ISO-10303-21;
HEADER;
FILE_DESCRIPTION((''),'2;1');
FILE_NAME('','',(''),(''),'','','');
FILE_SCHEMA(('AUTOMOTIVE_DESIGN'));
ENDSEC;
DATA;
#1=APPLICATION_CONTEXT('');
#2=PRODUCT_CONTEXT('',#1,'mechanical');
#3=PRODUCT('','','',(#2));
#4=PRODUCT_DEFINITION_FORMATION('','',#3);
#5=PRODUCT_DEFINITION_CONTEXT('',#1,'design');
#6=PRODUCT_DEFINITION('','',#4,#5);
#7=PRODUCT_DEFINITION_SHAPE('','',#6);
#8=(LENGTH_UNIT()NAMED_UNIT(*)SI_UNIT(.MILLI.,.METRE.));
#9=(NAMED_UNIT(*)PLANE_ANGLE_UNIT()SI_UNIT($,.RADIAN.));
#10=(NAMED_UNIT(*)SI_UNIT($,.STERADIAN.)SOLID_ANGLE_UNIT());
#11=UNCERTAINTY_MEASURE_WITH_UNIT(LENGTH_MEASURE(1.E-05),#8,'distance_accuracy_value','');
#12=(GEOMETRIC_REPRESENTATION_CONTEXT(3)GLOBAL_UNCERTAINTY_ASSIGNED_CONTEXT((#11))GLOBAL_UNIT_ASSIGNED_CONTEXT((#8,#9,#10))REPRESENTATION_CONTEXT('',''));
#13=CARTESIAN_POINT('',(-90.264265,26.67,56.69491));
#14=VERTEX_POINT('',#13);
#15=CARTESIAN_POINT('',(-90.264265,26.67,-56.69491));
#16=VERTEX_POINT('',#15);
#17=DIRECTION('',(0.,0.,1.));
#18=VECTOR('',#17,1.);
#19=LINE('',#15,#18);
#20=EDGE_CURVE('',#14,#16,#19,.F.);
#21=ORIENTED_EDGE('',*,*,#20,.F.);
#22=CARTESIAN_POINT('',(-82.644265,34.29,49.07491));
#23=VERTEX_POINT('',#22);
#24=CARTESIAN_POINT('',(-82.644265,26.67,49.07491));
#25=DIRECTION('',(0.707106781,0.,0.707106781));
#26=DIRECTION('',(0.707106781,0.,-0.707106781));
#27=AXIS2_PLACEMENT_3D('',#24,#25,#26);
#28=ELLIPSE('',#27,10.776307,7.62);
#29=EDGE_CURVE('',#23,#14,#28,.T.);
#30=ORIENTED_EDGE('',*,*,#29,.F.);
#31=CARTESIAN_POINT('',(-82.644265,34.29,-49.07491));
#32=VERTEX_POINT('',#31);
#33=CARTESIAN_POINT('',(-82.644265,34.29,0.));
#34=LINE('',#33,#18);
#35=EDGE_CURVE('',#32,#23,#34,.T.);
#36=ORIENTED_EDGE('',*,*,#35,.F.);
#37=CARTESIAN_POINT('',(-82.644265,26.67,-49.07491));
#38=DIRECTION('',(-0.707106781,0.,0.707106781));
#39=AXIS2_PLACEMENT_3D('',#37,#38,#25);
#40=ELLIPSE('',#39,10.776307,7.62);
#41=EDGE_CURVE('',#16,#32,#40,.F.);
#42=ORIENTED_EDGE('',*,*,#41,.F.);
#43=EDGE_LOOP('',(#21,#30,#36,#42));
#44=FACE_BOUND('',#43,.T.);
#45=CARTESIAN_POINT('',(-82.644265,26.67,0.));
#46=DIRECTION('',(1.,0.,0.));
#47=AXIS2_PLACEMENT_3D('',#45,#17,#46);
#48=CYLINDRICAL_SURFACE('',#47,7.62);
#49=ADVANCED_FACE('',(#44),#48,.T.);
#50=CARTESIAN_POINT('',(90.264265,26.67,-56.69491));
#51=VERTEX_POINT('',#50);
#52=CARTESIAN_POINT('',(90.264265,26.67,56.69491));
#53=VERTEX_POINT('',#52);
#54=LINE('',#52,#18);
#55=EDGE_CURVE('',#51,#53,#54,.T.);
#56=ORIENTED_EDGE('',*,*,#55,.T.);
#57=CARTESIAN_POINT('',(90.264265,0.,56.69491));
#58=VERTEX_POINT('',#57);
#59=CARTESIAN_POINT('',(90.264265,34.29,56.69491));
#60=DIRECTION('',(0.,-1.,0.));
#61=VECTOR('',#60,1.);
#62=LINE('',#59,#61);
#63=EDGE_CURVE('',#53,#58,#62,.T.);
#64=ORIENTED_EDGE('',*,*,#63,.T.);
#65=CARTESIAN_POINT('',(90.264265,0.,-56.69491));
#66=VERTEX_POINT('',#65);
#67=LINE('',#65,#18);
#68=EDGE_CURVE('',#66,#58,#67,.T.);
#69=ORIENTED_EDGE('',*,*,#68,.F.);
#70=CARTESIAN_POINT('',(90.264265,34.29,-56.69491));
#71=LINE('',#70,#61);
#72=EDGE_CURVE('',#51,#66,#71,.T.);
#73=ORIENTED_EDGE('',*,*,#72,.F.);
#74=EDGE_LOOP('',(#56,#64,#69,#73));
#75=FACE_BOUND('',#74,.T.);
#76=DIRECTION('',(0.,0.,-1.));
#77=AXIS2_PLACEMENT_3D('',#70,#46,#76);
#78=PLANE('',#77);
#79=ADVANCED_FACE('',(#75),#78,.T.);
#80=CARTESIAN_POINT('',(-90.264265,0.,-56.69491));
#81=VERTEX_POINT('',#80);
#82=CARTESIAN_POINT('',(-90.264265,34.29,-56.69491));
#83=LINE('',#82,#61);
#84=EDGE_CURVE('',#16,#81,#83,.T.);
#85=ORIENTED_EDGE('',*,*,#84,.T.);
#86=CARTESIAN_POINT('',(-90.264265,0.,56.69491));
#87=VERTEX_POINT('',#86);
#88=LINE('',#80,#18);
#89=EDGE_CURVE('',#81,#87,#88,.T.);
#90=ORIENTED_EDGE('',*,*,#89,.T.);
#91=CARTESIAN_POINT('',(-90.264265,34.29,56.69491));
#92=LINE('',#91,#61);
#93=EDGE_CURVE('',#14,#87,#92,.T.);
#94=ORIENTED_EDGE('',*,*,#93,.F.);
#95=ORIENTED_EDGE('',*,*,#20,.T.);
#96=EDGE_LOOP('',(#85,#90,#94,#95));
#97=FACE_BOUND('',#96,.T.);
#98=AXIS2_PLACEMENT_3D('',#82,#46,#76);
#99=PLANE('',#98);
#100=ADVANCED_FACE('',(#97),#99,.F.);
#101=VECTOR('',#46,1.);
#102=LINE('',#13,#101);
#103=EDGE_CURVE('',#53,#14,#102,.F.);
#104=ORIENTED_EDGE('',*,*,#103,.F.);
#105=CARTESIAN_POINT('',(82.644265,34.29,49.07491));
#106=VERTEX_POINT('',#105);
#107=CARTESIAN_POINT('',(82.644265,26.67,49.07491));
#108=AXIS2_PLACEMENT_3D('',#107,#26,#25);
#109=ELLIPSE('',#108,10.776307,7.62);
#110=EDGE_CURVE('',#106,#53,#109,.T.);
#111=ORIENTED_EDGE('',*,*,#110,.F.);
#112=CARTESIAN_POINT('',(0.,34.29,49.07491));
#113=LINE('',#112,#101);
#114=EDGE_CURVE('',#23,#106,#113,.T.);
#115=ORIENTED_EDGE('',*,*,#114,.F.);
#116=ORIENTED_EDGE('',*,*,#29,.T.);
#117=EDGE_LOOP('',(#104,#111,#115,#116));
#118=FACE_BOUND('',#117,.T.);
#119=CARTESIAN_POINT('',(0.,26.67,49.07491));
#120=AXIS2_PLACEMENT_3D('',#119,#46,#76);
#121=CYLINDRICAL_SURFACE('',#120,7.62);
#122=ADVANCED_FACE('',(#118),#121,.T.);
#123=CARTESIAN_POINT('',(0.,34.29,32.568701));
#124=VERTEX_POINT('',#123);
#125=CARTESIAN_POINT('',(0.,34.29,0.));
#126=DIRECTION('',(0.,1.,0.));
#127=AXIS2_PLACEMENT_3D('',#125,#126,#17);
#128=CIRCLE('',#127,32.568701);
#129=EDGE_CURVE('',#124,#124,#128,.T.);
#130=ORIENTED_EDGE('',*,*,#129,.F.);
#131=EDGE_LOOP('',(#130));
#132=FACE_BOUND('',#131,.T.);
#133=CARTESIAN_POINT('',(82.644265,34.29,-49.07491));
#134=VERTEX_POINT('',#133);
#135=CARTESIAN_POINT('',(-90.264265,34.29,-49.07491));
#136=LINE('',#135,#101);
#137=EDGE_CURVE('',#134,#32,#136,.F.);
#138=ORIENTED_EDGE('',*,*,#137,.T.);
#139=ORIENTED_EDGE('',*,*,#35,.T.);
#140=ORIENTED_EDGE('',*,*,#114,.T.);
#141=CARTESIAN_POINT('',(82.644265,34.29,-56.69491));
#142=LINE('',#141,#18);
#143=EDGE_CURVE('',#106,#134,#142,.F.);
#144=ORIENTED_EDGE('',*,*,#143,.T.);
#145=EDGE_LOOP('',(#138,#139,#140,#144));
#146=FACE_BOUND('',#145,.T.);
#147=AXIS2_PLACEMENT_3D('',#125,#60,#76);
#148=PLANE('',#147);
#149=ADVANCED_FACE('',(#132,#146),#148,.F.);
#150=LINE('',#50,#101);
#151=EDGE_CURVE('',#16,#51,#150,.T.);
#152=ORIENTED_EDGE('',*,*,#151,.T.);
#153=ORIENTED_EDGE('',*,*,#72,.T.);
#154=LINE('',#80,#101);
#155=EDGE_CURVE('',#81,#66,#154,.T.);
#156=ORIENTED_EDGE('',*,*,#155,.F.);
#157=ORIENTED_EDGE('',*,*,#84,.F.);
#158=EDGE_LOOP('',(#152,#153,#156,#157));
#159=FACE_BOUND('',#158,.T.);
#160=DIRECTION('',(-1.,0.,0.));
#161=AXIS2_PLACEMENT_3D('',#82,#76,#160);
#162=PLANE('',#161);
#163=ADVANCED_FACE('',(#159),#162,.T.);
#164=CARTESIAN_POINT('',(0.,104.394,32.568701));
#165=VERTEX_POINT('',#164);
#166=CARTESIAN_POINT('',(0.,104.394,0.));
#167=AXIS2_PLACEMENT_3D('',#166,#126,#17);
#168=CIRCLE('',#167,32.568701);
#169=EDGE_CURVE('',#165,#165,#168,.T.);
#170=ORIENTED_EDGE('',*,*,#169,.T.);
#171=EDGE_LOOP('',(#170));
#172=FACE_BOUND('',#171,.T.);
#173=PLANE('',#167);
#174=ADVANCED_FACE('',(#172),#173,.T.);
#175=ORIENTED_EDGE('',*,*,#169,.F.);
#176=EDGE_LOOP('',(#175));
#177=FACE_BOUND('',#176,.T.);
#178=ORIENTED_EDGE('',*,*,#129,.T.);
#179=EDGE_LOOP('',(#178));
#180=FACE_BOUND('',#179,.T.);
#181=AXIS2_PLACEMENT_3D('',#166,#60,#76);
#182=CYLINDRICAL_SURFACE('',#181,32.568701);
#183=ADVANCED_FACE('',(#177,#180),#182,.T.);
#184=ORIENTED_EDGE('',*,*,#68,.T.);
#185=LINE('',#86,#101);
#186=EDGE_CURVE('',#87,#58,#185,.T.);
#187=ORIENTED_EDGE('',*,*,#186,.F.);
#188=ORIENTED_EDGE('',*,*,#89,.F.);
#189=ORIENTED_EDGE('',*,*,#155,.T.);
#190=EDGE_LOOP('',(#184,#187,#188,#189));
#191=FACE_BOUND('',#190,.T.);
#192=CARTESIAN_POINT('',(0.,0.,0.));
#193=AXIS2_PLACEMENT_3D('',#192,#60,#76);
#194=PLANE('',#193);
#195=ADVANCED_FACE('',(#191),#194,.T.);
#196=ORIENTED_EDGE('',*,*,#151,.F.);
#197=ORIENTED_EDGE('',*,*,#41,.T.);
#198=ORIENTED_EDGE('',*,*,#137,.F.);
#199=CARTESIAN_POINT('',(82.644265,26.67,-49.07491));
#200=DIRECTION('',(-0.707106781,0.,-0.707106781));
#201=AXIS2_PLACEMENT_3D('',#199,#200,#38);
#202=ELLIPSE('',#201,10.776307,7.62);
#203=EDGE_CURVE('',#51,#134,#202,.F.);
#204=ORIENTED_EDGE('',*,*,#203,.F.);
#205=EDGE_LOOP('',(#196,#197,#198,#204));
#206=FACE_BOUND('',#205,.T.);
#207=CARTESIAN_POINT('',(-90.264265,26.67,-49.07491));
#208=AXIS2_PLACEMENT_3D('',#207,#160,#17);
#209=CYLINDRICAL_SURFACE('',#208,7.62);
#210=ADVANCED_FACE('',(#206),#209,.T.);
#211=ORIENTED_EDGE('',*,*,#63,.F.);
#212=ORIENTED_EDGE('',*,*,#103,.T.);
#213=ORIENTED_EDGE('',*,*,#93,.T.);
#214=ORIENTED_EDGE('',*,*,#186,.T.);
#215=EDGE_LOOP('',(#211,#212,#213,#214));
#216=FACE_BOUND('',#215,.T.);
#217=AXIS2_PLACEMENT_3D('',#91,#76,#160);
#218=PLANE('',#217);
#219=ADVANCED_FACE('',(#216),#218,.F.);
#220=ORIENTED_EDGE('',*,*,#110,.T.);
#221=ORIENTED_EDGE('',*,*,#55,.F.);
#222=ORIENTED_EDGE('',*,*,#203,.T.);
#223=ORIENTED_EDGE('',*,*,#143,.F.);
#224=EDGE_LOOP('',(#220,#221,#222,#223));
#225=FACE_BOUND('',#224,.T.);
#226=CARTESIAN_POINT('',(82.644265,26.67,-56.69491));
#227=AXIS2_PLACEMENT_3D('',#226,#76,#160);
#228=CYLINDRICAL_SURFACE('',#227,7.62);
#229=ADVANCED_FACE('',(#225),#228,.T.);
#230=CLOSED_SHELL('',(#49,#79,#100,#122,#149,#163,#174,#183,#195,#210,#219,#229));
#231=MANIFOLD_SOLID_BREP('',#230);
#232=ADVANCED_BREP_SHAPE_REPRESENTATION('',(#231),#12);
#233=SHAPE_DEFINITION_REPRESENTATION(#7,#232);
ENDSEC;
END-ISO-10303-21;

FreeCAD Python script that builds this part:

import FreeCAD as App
import Part
import Sketcher
Q = App.Units.Quantity


def edges_at(feature, points):
    """Names of the edges that pass closest to the given points."""
    edges = feature.Shape.Edges
    near = lambda p: min(range(len(edges)), key=lambda i: edges[i].distToShape(Part.Vertex(*p))[0])
    return sorted({f"Edge{near(p) + 1}" for p in points})

doc = App.newDocument("Part")
body = doc.addObject("PartDesign::Body", "Body")

# Sketch on XZ plane
sketch1 = body.newObject("Sketcher::SketchObject", "Sketch")
sketch1.AttachmentSupport = (doc.getObject("XZ_Plane"), [""])
sketch1.MapMode = "FlatFace"
sketch1.addGeometry(Part.LineSegment(App.Vector(-90, -57, 0), App.Vector(-90, 57, 0)), False)
sketch1.addGeometry(Part.LineSegment(App.Vector(-90, 57, 0), App.Vector(90, 57, 0)), False)
sketch1.addGeometry(Part.LineSegment(App.Vector(90, 57, 0), App.Vector(90, -57, 0)), False)
sketch1.addGeometry(Part.LineSegment(App.Vector(90, -57, 0), App.Vector(-90, -57, 0)), False)
sketch1.addConstraint(Sketcher.Constraint("Coincident", 0, 2, 1, 1))
sketch1.addConstraint(Sketcher.Constraint("Coincident", 1, 2, 2, 1))
sketch1.addConstraint(Sketcher.Constraint("Coincident", 2, 2, 3, 1))
sketch1.addConstraint(Sketcher.Constraint("Coincident", 3, 2, 0, 1))
sketch1.addConstraint(Sketcher.Constraint("Vertical", 0))
sketch1.addConstraint(Sketcher.Constraint("Horizontal", 1))
sketch1.addConstraint(Sketcher.Constraint("Vertical", 2))
sketch1.addConstraint(Sketcher.Constraint("Horizontal", 3))
sketch1.addConstraint(Sketcher.Constraint("Symmetric", 0, 2, 2, 2, -1, 1))
sketch1.addConstraint(Sketcher.Constraint("DistanceX", 1, 1, 1, 2, 180.528529))
sketch1.addConstraint(Sketcher.Constraint("DistanceY", 0, 1, 0, 2, 113.38982))
pad1 = body.newObject("PartDesign::Pad", "Pad")
pad1.Profile = sketch1
pad1.Length = Q("1.35 in")
pad1.Reversed = True

# Sketch on XZ plane
sketch2 = body.newObject("Sketcher::SketchObject", "Sketch001")
sketch2.AttachmentSupport = (doc.getObject("XZ_Plane"), [""])
sketch2.MapMode = "FlatFace"
sketch2.AttachmentOffset = App.Placement(App.Vector(0, 0, -1.35 * 25.4), App.Rotation())
sketch2.addGeometry(Part.Circle(App.Vector(0, 0, 0), App.Vector(0, 0, 1), 33), False)
sketch2.addConstraint(Sketcher.Constraint("Coincident", 0, 3, -1, 1))
sketch2.addConstraint(Sketcher.Constraint("Diameter", 0, 65.137402))
pad2 = body.newObject("PartDesign::Pad", "Pad001")
pad2.Profile = sketch2
pad2.Length = Q("2.76 in")
pad2.Reversed = True
doc.recompute()

fillet = body.newObject("PartDesign::Fillet", "Fillet")
fillet.Base = (pad2, edges_at(pad2, [
    (0, 34.29, -56.695),
    (-90.264, 34.29, 0),
    (0, 34.29, 56.695),
    (90.264, 34.29, 0),
]))
fillet.Radius = Q("0.3 in")

doc.recompute()
